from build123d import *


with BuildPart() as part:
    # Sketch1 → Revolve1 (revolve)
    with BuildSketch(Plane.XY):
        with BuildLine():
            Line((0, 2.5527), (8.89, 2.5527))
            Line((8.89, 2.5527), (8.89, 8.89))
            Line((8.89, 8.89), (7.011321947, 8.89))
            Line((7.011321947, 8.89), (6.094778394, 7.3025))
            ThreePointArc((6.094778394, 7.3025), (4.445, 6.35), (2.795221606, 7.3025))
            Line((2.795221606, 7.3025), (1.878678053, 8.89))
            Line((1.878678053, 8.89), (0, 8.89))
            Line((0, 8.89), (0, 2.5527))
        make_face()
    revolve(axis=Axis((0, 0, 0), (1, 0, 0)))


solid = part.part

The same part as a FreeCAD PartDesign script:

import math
import FreeCAD as App
import Part
import Sketcher
from FreeCAD import Vector
Q = App.Units.Quantity

doc = App.newDocument("Part")
body = doc.addObject("PartDesign::Body", "Body")

sketch1 = body.newObject("Sketcher::SketchObject", "Sketch")
sketch1.AttachmentSupport = (doc.getObject("XY_Plane"), [""])
sketch1.MapMode = "FlatFace"
sketch1.addGeometry(Part.LineSegment(Vector(0, 2.6, 0), Vector(8.9, 2.6, 0)), False)
sketch1.addGeometry(Part.LineSegment(Vector(8.9, 2.6, 0), Vector(8.9, 8.9, 0)), False)
sketch1.addGeometry(Part.LineSegment(Vector(8.9, 8.9, 0), Vector(7, 8.9, 0)), False)
sketch1.addGeometry(Part.LineSegment(Vector(7, 8.9, 0), Vector(6.1, 7.3, 0)), False)
sketch1.addGeometry(Part.ArcOfCircle(Part.Circle(Vector(4.4, 8.3, 0), Vector(0, 0, 1), 1.9), math.radians(-150), math.radians(-30)), False)
sketch1.addGeometry(Part.LineSegment(Vector(2.8, 7.3, 0), Vector(1.9, 8.9, 0)), False)
sketch1.addGeometry(Part.LineSegment(Vector(1.9, 8.9, 0), Vector(0, 8.9, 0)), False)
sketch1.addGeometry(Part.LineSegment(Vector(0, 8.9, 0), Vector(0, 2.6, 0)), False)
sketch1.addConstraint(Sketcher.Constraint("Coincident", 0, 2, 1, 1))
sketch1.addConstraint(Sketcher.Constraint("Coincident", 1, 2, 2, 1))
sketch1.addConstraint(Sketcher.Constraint("Coincident", 2, 2, 3, 1))
sketch1.addConstraint(Sketcher.Constraint("Tangent", 3, 2, 4, 2))
sketch1.addConstraint(Sketcher.Constraint("Tangent", 4, 1, 5, 1))
sketch1.addConstraint(Sketcher.Constraint("Coincident", 5, 2, 6, 1))
sketch1.addConstraint(Sketcher.Constraint("Coincident", 6, 2, 7, 1))
sketch1.addConstraint(Sketcher.Constraint("Coincident", 7, 2, 0, 1))
sketch1.addConstraint(Sketcher.Constraint("Horizontal", 0))
sketch1.addConstraint(Sketcher.Constraint("Vertical", 1))
sketch1.addConstraint(Sketcher.Constraint("Horizontal", 2))
sketch1.addConstraint(Sketcher.Constraint("Horizontal", 6))
sketch1.addConstraint(Sketcher.Constraint("Vertical", 7))
sketch1.addConstraint(Sketcher.Constraint("PointOnObject", 6, 2, -2))
sketch1.addConstraint(Sketcher.Constraint("Horizontal", 3, 2, 4, 1))
sketch1.addConstraint(Sketcher.Constraint("Horizontal", 2, 2, 5, 2))
sketch1.addConstraint(Sketcher.Constraint("Equal", 2, 6))
sketch1.addConstraint(Sketcher.Constraint("Angle", 3, Q("-120 deg")))
sketch1.addConstraint(Sketcher.Constraint("Radius", 4, Q("0.075 in")))
sketch1.addConstraint(Sketcher.Constraint("DistanceX", 0, 1, 0, 2, Q("0.35 in")))
sketch1.addConstraint(Sketcher.Constraint("DistanceY", -1, 1, 1, 2, Q("0.35 in")))
sketch1.addConstraint(Sketcher.Constraint("DistanceY", 1, 1, 1, 2, Q("0.2495 in")))
sketch1.addConstraint(Sketcher.Constraint("DistanceY", -1, 1, 4, 3, Q("0.325 in")))
revolution = body.newObject("PartDesign::Revolution", "Revolution")
revolution.Profile = sketch1
revolution.ReferenceAxis = (sketch1, ["H_Axis"])
revolution.Angle = 360

doc.recompute()
